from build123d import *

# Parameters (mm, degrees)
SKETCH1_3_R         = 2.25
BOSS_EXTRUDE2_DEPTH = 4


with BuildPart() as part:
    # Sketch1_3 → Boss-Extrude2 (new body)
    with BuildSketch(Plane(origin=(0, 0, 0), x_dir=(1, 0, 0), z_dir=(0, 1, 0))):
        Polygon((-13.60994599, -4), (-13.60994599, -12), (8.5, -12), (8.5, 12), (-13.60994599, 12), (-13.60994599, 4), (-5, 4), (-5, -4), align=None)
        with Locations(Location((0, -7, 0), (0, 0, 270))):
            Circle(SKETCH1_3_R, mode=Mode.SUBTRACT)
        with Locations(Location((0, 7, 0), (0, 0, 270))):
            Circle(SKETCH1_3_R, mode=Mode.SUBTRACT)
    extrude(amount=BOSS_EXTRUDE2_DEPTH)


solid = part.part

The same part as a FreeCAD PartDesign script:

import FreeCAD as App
import Part
import Sketcher
from FreeCAD import Vector

doc = App.newDocument("Part")
body = doc.addObject("PartDesign::Body", "Body")

sketch1 = body.newObject("Sketcher::SketchObject", "Sketch")
sketch1.AttachmentSupport = (doc.getObject("XZ_Plane"), [""])
sketch1.MapMode = "FlatFace"
sketch1.addGeometry(Part.LineSegment(Vector(-13.6, 4, 0), Vector(-13.6, 12, 0)), False)
sketch1.addGeometry(Part.LineSegment(Vector(-13.6, 12, 0), Vector(8.5, 12, 0)), False)
sketch1.addGeometry(Part.LineSegment(Vector(8.5, 12, 0), Vector(8.5, -12, 0)), False)
sketch1.addGeometry(Part.LineSegment(Vector(8.5, -12, 0), Vector(-13.6, -12, 0)), False)
sketch1.addGeometry(Part.LineSegment(Vector(-13.6, -12, 0), Vector(-13.6, -4, 0)), False)
sketch1.addGeometry(Part.LineSegment(Vector(-13.6, -4, 0), Vector(-5, -4, 0)), False)
sketch1.addGeometry(Part.LineSegment(Vector(-5, -4, 0), Vector(-5, 4, 0)), False)
sketch1.addGeometry(Part.LineSegment(Vector(-5, 4, 0), Vector(-13.6, 4, 0)), False)
sketch1.addGeometry(Part.Circle(Vector(0, 7, 0), Vector(0, 0, 1), 2.2), False)
sketch1.addGeometry(Part.Circle(Vector(0, -7, 0), Vector(0, 0, 1), 2.2), False)
sketch1.addConstraint(Sketcher.Constraint("Coincident", 0, 2, 1, 1))
sketch1.addConstraint(Sketcher.Constraint("Coincident", 1, 2, 2, 1))
sketch1.addConstraint(Sketcher.Constraint("Coincident", 2, 2, 3, 1))
sketch1.addConstraint(Sketcher.Constraint("Coincident", 3, 2, 4, 1))
sketch1.addConstraint(Sketcher.Constraint("Coincident", 4, 2, 5, 1))
sketch1.addConstraint(Sketcher.Constraint("Coincident", 5, 2, 6, 1))
sketch1.addConstraint(Sketcher.Constraint("Coincident", 6, 2, 7, 1))
sketch1.addConstraint(Sketcher.Constraint("Coincident", 7, 2, 0, 1))
sketch1.addConstraint(Sketcher.Constraint("Vertical", 0))
sketch1.addConstraint(Sketcher.Constraint("Horizontal", 1))
sketch1.addConstraint(Sketcher.Constraint("Vertical", 2))
sketch1.addConstraint(Sketcher.Constraint("Horizontal", 3))
sketch1.addConstraint(Sketcher.Constraint("Vertical", 4))
sketch1.addConstraint(Sketcher.Constraint("Horizontal", 5))
sketch1.addConstraint(Sketcher.Constraint("Vertical", 6))
sketch1.addConstraint(Sketcher.Constraint("Horizontal", 7))
sketch1.addConstraint(Sketcher.Constraint("Equal", 8, 9))
sketch1.addConstraint(Sketcher.Constraint("Symmetric", 8, 3, 9, 3, -1, 1))
sketch1.addConstraint(Sketcher.Constraint("Symmetric", 0, 2, 3, 2, -1))
sketch1.addConstraint(Sketcher.Constraint("PointOnObject", 8, 3, -2))
sketch1.addConstraint(Sketcher.Constraint("Equal", 0, 4))
sketch1.addConstraint(Sketcher.Constraint("Equal", 4, 6))
sketch1.addConstraint(Sketcher.Constraint("Diameter", 8, 4.5))
sketch1.addConstraint(Sketcher.Constraint("DistanceY", 0, 1, 0, 2, 8.0))
sketch1.addConstraint(Sketcher.Constraint("DistanceY", -1, 1, 8, 3, 7.0))
sketch1.addConstraint(Sketcher.Constraint("DistanceX", 5, 2, -1, 1, 5.0))
sketch1.addConstraint(Sketcher.Constraint("DistanceX", -1, 1, 1, 2, 8.5))
sketch1.addConstraint(Sketcher.Constraint("DistanceX", 1, 1, 1, 2, 22.109946))
pad1 = body.newObject("PartDesign::Pad", "Pad")
pad1.Profile = sketch1
pad1.Length = 4
pad1.Reversed = True

doc.recompute()
